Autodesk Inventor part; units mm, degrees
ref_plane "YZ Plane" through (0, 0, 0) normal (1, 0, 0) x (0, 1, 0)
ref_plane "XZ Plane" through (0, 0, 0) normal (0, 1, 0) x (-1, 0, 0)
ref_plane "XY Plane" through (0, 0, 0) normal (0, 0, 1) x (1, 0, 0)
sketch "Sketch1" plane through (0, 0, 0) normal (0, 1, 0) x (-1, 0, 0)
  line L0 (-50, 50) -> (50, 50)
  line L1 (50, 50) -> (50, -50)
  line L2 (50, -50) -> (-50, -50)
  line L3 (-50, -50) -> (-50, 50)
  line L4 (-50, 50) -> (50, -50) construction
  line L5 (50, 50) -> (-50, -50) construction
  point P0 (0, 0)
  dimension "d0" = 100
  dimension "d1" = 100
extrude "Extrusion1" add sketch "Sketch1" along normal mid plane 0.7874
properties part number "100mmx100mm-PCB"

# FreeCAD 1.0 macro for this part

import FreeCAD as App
import Part
import Sketcher
Q = App.Units.Quantity

doc = App.newDocument("Part")
body = doc.addObject("PartDesign::Body", "Body")

sketch1 = body.newObject("Sketcher::SketchObject", "Sketch")
sketch1.AttachmentSupport = (doc.getObject("XZ_Plane"), [""])
sketch1.MapMode = "FlatFace"
sketch1.addGeometry([
    Part.LineSegment(App.Vector(-50, 50, 0), App.Vector(50, 50, 0)),
    Part.LineSegment(App.Vector(50, 50, 0), App.Vector(50, -50, 0)),
    Part.LineSegment(App.Vector(50, -50, 0), App.Vector(-50, -50, 0)),
    Part.LineSegment(App.Vector(-50, -50, 0), App.Vector(-50, 50, 0)),
], False)
sketch1.addConstraint([
    Sketcher.Constraint("Coincident", 0, 2, 1, 1),
    Sketcher.Constraint("Coincident", 1, 2, 2, 1),
    Sketcher.Constraint("Coincident", 2, 2, 3, 1),
    Sketcher.Constraint("Coincident", 3, 2, 0, 1),
    Sketcher.Constraint("Horizontal", 0),
    Sketcher.Constraint("Vertical", 1),
    Sketcher.Constraint("Horizontal", 2),
    Sketcher.Constraint("Vertical", 3),
    Sketcher.Constraint("Symmetric", 0, 2, 2, 2, -1, 1),
    Sketcher.Constraint("Equal", 2, 1),
    Sketcher.Constraint("DistanceX", 0, 1, 0, 2, Q("3.937 in")),
])
pad1 = body.newObject("PartDesign::Pad", "Pad")
pad1.Profile = sketch1
pad1.Length = Q("0.031 in")
pad1.Midplane = True

doc.recompute()
